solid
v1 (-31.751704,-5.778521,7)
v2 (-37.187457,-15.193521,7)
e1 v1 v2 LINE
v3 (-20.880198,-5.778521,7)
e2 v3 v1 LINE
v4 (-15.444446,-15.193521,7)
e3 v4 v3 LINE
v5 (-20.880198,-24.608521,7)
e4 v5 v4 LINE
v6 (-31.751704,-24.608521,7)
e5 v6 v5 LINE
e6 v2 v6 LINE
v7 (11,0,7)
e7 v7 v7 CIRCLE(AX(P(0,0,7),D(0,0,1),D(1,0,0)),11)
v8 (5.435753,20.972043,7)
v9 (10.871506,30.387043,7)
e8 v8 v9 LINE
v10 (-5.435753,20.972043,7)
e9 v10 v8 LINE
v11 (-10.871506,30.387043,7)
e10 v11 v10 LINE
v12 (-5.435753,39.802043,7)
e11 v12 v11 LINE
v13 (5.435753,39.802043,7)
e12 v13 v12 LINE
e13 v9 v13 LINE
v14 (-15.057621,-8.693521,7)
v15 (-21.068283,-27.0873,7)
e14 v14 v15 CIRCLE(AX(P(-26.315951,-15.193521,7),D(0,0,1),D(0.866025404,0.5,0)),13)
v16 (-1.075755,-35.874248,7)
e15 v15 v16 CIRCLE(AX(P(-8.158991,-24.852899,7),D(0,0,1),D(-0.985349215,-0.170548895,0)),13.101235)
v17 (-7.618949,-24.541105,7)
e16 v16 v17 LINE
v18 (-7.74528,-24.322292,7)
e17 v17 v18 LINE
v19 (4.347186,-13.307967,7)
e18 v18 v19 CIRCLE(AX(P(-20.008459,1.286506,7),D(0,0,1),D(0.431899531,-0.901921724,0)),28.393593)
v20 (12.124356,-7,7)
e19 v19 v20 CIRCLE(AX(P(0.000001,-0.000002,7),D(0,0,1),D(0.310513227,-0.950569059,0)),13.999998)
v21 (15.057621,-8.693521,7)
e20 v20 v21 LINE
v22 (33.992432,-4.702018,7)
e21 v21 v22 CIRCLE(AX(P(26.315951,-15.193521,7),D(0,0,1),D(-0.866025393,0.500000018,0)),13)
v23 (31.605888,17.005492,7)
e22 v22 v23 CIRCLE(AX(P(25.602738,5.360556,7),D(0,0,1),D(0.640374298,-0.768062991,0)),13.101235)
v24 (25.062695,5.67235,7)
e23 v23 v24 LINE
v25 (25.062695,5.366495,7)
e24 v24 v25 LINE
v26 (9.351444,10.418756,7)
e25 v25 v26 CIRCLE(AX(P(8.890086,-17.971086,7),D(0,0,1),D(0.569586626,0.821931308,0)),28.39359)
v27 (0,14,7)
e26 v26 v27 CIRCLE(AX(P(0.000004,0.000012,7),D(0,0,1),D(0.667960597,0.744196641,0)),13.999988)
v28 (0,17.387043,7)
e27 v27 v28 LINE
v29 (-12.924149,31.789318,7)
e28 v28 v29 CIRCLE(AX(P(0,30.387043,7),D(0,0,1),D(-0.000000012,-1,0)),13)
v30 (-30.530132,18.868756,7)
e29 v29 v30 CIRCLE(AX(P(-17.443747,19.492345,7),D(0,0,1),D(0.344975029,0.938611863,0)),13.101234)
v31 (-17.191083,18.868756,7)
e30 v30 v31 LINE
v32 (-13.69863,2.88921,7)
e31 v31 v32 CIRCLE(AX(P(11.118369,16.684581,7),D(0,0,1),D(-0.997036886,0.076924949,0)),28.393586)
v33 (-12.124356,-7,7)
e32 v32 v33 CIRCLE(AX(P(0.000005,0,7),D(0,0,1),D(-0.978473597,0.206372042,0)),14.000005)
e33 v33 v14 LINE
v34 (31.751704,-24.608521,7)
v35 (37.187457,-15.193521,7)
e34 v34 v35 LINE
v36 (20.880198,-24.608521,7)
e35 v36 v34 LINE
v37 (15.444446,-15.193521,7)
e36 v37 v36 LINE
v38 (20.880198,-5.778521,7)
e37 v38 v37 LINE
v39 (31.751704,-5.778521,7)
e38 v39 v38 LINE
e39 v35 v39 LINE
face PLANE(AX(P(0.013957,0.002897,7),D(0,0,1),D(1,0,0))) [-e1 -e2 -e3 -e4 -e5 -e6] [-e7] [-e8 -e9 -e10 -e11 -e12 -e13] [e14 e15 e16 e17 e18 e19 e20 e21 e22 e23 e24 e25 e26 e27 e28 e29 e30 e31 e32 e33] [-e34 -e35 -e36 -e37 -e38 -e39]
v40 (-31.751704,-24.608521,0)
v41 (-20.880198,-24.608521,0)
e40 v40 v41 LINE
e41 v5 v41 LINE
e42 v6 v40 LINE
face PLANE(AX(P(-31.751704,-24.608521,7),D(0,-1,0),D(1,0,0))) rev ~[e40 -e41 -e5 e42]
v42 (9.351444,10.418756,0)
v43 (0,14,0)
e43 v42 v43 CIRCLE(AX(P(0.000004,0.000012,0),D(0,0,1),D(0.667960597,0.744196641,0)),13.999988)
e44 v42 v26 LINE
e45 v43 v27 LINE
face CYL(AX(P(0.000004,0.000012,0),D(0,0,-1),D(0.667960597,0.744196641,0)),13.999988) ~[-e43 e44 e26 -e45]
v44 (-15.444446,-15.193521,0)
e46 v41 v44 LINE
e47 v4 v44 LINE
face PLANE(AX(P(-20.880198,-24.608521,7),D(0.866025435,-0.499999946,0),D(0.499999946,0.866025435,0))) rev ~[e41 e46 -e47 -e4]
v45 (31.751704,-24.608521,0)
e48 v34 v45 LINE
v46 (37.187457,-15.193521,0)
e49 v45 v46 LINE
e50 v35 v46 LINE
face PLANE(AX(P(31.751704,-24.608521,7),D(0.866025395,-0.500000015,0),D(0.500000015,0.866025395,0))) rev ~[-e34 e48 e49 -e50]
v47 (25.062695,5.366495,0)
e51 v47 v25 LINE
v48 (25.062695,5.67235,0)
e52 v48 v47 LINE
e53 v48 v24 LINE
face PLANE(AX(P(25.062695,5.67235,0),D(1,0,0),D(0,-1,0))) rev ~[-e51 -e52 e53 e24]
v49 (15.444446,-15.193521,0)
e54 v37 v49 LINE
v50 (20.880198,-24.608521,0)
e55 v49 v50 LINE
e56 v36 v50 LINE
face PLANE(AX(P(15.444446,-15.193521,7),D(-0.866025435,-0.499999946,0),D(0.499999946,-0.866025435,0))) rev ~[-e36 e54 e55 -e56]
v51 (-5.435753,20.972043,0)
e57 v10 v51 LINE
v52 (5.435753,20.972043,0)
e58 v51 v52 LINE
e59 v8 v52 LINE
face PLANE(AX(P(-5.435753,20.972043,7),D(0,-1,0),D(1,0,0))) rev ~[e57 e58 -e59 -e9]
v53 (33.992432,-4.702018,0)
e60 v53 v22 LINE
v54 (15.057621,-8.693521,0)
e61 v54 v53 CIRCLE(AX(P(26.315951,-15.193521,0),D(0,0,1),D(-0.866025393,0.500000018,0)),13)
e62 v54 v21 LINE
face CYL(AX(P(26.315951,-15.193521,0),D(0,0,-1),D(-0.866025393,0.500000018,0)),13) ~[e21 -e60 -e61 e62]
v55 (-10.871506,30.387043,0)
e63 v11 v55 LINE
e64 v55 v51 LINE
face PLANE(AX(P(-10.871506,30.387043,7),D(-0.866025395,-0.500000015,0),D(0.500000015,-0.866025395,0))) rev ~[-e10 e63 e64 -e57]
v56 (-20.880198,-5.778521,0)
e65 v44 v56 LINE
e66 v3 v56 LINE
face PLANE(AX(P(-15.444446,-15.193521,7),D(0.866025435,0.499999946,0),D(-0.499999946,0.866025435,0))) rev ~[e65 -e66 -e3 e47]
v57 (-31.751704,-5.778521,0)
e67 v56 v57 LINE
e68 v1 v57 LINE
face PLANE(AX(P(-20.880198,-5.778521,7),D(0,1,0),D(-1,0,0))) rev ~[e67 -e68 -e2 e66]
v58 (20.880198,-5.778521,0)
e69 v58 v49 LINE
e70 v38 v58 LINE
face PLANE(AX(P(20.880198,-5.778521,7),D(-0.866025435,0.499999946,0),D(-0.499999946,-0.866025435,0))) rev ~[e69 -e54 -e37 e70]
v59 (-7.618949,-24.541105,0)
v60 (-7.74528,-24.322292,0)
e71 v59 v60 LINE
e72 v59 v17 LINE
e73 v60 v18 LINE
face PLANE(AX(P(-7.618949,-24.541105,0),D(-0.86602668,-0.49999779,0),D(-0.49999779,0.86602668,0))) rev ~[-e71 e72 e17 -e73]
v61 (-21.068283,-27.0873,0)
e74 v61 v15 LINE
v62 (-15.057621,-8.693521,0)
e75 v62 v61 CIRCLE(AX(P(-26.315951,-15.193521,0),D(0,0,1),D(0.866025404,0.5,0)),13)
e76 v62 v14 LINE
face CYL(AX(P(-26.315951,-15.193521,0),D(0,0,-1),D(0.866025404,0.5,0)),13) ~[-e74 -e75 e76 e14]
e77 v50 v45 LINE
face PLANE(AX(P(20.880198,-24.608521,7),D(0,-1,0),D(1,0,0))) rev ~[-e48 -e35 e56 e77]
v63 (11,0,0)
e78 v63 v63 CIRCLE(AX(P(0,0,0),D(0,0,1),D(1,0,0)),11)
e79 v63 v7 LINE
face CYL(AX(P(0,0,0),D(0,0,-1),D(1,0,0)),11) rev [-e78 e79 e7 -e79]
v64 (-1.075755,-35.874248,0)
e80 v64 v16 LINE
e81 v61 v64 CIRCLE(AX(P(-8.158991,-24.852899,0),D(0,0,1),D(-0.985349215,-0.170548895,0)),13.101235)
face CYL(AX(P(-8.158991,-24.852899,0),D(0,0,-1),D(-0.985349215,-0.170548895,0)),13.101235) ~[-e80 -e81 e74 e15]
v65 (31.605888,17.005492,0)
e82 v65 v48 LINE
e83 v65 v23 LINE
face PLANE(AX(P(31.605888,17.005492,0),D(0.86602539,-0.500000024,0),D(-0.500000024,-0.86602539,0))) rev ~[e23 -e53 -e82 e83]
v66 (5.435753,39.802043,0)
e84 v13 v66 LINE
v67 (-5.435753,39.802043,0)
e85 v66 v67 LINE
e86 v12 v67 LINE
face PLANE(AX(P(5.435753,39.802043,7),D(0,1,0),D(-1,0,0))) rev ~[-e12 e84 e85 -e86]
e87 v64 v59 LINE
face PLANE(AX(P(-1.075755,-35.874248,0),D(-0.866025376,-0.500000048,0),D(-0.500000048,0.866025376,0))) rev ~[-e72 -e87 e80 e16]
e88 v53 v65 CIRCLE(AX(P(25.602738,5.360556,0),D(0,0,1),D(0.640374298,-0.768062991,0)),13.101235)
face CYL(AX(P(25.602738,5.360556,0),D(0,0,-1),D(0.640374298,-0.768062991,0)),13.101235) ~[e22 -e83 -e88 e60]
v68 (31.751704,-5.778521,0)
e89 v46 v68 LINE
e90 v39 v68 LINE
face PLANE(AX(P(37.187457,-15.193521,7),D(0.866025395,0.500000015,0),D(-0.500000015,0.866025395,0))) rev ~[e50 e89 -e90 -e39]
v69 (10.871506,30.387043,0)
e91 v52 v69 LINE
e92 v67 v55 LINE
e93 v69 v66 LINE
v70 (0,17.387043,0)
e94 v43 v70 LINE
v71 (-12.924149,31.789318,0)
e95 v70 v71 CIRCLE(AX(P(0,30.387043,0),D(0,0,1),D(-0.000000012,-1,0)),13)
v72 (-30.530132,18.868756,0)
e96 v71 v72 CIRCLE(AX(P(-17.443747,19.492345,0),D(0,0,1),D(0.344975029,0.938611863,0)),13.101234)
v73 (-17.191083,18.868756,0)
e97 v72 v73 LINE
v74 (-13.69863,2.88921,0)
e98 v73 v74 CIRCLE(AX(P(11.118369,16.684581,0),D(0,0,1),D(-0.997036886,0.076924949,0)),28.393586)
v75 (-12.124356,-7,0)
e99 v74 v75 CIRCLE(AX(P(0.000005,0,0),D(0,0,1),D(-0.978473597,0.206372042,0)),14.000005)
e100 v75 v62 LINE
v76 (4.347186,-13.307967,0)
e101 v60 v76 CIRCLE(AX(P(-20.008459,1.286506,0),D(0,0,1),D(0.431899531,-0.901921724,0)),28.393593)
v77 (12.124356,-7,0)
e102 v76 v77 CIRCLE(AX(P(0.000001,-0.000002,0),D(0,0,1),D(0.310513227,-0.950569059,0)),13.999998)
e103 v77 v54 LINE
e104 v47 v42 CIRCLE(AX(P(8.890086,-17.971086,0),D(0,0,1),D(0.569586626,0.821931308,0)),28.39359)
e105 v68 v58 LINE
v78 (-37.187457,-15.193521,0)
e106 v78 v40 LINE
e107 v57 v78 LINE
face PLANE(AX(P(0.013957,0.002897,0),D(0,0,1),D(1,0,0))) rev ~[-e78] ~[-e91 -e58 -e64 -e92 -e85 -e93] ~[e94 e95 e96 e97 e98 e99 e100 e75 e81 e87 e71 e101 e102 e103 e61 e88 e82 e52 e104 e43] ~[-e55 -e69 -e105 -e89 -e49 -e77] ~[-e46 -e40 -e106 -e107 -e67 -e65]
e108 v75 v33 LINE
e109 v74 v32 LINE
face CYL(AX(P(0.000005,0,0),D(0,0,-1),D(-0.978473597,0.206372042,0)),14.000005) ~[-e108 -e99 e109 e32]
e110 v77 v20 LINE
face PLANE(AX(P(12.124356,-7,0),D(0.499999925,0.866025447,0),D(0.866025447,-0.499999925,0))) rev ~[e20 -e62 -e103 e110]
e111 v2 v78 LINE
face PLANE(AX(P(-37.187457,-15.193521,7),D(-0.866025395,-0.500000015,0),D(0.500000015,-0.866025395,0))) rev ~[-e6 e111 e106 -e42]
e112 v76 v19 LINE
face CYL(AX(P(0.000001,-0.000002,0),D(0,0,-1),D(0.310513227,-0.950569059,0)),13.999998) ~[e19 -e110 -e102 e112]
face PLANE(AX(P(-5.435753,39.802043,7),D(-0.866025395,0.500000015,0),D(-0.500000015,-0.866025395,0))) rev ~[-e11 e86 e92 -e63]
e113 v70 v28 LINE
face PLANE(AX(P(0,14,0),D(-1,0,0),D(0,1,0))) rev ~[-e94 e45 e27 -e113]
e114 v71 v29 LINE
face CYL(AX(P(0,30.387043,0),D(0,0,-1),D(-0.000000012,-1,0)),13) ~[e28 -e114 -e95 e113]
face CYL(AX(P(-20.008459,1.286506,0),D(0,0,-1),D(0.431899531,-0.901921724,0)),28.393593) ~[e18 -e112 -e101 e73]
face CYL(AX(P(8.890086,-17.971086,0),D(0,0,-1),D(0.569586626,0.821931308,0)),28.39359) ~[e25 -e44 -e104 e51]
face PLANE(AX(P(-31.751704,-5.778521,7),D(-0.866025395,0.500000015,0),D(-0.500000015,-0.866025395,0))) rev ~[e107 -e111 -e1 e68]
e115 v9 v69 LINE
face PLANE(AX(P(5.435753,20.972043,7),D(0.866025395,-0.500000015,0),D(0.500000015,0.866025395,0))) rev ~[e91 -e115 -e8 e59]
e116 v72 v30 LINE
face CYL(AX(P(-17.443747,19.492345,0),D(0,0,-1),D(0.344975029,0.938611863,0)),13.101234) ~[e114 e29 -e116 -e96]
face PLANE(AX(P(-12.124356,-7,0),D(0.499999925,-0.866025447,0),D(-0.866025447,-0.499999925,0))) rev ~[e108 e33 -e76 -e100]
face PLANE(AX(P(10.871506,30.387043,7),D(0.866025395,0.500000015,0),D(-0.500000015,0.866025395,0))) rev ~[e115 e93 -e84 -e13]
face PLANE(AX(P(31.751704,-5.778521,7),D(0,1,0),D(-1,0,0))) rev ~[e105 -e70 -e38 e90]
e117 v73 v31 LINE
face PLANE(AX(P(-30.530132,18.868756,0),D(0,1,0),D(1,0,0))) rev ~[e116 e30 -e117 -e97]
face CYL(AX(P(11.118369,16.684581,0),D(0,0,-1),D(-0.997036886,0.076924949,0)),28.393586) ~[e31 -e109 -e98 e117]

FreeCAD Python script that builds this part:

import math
import FreeCAD as App
import Part
import Sketcher
Q = App.Units.Quantity


def add_polygon(sketch, points):
    """Adds a closed chain of lines whose ends are joined by coincident constraints."""
    first, n = sketch.GeometryCount, len(points)
    for a, b in zip(points, points[1:] + points[:1]):
        sketch.addGeometry(Part.LineSegment(App.Vector(*a, 0), App.Vector(*b, 0)), False)
    for i in range(n):
        sketch.addConstraint(Sketcher.Constraint("Coincident", first + i, 2, first + (i + 1) % n, 1))

doc = App.newDocument("Part")
body = doc.addObject("PartDesign::Body", "Body")

# Sketch on XY plane
sketch1 = body.newObject("Sketcher::SketchObject", "Sketch")
sketch1.AttachmentSupport = (doc.getObject("XY_Plane"), [""])
sketch1.MapMode = "FlatFace"
sketch1.addGeometry([
    Part.ArcOfCircle(Part.Circle(App.Vector(-20.008459, 1.286506, 0), App.Vector(0, 0, 1), 28.393593), math.radians(-64.41183), math.radians(-30.931028)),  # 0
    Part.ArcOfCircle(Part.Circle(App.Vector(0.000001, -0.000002, 0), App.Vector(0, 0, 1), 13.999998), math.radians(-71.909837), math.radians(-29.999995)),  # 1
    Part.LineSegment(App.Vector(12.124356, -7, 0), App.Vector(15.057621, -8.693521, 0)),  # 2
    Part.ArcOfCircle(Part.Circle(App.Vector(26.315951, -15.193521, 0), App.Vector(0, 0, 1), 13), math.radians(149.999999), math.radians(413.807606)),  # 3
    Part.ArcOfCircle(Part.Circle(App.Vector(25.602738, 5.360556, 0), App.Vector(0, 0, 1), 13.101235), math.radians(-50.180264), math.radians(62.728174)),  # 4
    Part.LineSegment(App.Vector(31.605888, 17.005492, 0), App.Vector(25.062695, 5.67235, 0)),  # 5
    Part.LineSegment(App.Vector(25.062695, 5.67235, 0), App.Vector(25.062695, 5.366495, 0)),  # 6
    Part.ArcOfCircle(Part.Circle(App.Vector(8.890086, -17.971086, 0), App.Vector(0, 0, 1), 28.39359), math.radians(55.278595), math.radians(89.068978)),  # 7
    Part.ArcOfCircle(Part.Circle(App.Vector(0.000004, 0.000012, 0), App.Vector(0, 0, 1), 13.999988), math.radians(48.090143), math.radians(90.000014)),  # 8
    Part.LineSegment(App.Vector(0, 14, 0), App.Vector(0, 17.387043, 0)),  # 9
    Part.ArcOfCircle(Part.Circle(App.Vector(0, 30.387043, 0), App.Vector(0, 0, 1), 13), math.radians(-90.000001), math.radians(173.807611)),  # 10
    Part.ArcOfCircle(Part.Circle(App.Vector(-17.443747, 19.492345, 0), App.Vector(0, 0, 1), 13.101234), math.radians(69.819729), math.radians(182.728178)),  # 11
    Part.LineSegment(App.Vector(-30.530132, 18.868756, 0), App.Vector(-17.191083, 18.868756, 0)),  # 12
    Part.ArcOfCircle(Part.Circle(App.Vector(11.118369, 16.684581, 0), App.Vector(0, 0, 1), 28.393586), math.radians(175.588167), math.radians(209.068979)),  # 13
    Part.ArcOfCircle(Part.Circle(App.Vector(0.000005, 0, 0), App.Vector(0, 0, 1), 14.000005), math.radians(168.090171), math.radians(209.999989)),  # 14
    Part.LineSegment(App.Vector(-12.124356, -7, 0), App.Vector(-15.057621, -8.693521, 0)),  # 15
    Part.ArcOfCircle(Part.Circle(App.Vector(-26.315951, -15.193521, 0), App.Vector(0, 0, 1), 13), math.radians(30), math.radians(293.807608)),  # 16
    Part.ArcOfCircle(Part.Circle(App.Vector(-8.158991, -24.852899, 0), App.Vector(0, 0, 1), 13.101235), math.radians(-170.180266), math.radians(-57.271826)),  # 17
    Part.LineSegment(App.Vector(-1.075755, -35.874248, 0), App.Vector(-7.618949, -24.541105, 0)),  # 18
    Part.LineSegment(App.Vector(-7.618949, -24.541105, 0), App.Vector(-7.74528, -24.322292, 0)),  # 19
    Part.Circle(App.Vector(0, 0, 0), App.Vector(0, 0, 1), 11),  # 20
], False)
sketch1.addConstraint([
    Sketcher.Constraint("Coincident", 0, 2, 1, 1),
    Sketcher.Constraint("Coincident", 1, 2, 2, 1),
    Sketcher.Constraint("Coincident", 2, 2, 3, 1),
    Sketcher.Constraint("Coincident", 3, 2, 4, 1),
    Sketcher.Constraint("Coincident", 4, 2, 5, 1),
    Sketcher.Constraint("Coincident", 5, 2, 6, 1),
    Sketcher.Constraint("Coincident", 6, 2, 7, 1),
    Sketcher.Constraint("Coincident", 7, 2, 8, 1),
    Sketcher.Constraint("Coincident", 8, 2, 9, 1),
    Sketcher.Constraint("Coincident", 9, 2, 10, 1),
    Sketcher.Constraint("Coincident", 10, 2, 11, 1),
    Sketcher.Constraint("Coincident", 11, 2, 12, 1),
    Sketcher.Constraint("Coincident", 12, 2, 13, 1),
    Sketcher.Constraint("Coincident", 13, 2, 14, 1),
    Sketcher.Constraint("Coincident", 14, 2, 15, 1),
    Sketcher.Constraint("Coincident", 15, 2, 16, 1),
    Sketcher.Constraint("Coincident", 16, 2, 17, 1),
    Sketcher.Constraint("Coincident", 17, 2, 18, 1),
    Sketcher.Constraint("Coincident", 18, 2, 19, 1),
    Sketcher.Constraint("Coincident", 19, 2, 0, 1),
    Sketcher.Constraint("Vertical", 6),
    Sketcher.Constraint("Vertical", 9),
    Sketcher.Constraint("Horizontal", 12),
    Sketcher.Constraint("Coincident", 1, 3, -1, 1),
    Sketcher.Constraint("Coincident", 14, 3, -1, 1),
    Sketcher.Constraint("Coincident", 20, 3, -1, 1),
    Sketcher.Constraint("Equal", 3, 10),
    Sketcher.Constraint("Equal", 4, 11),
    Sketcher.Constraint("Equal", 10, 16),
    Sketcher.Constraint("Equal", 11, 17),
    Sketcher.Constraint("Symmetric", 3, 3, 16, 3, -2),
    Sketcher.Constraint("Symmetric", 1, 2, 14, 2, -2),
    Sketcher.Constraint("PointOnObject", 10, 3, -2),
    Sketcher.Constraint("PointOnObject", 8, 2, -2),
    Sketcher.Constraint("Perpendicular", 2, 5),
    Sketcher.Constraint("Perpendicular", 15, 18),
    Sketcher.Constraint("Horizontal", 2, 2, 15, 2),
    Sketcher.Constraint("Vertical", 8, 3, 14, 3),
    Sketcher.Constraint("Equal", 5, 18),
    Sketcher.Constraint("Diameter", 20, Q("22 mm")),
    Sketcher.Constraint("Radius", 1, Q("13.999998 mm")),
    Sketcher.Constraint("Radius", 3, Q("13 mm")),
    Sketcher.Constraint("Angle", 2, Q("-29.999995 deg")),
    Sketcher.Constraint("DistanceY", 1, 2, -1, 1, Q("7 mm")),
    Sketcher.Constraint("DistanceY", -1, 1, 8, 2, Q("14 mm")),
    Sketcher.Constraint("DistanceY", 3, 3, 2, 2, Q("6.5 mm")),
    Sketcher.Constraint("Radius", 7, Q("28.39359 mm")),
    Sketcher.Constraint("Radius", 8, Q("13.999988 mm")),
    Sketcher.Constraint("Radius", 0, Q("28.393593 mm")),
    Sketcher.Constraint("Radius", 4, Q("13.101235 mm")),
    Sketcher.Constraint("Radius", 13, Q("28.393586 mm")),
    Sketcher.Constraint("DistanceX", 12, 1, 12, 2, Q("13.339049 mm")),
    Sketcher.Constraint("DistanceY", 17, 3, -1, 1, Q("24.852899 mm")),
    Sketcher.Constraint("DistanceY", 16, 2, -1, 1, Q("27.0873 mm")),
    Sketcher.Constraint("DistanceY", 11, 3, 10, 3, Q("10.894699 mm")),
    Sketcher.Constraint("DistanceX", 0, 2, 7, 3, Q("4.5429 mm")),
    Sketcher.Constraint("DistanceX", 11, 3, 10, 2, Q("4.519598 mm")),
    Sketcher.Constraint("DistanceY", 8, 3, 13, 2, Q("2.889198 mm")),
    Sketcher.Constraint("DistanceY", 6, 2, 6, 1, Q("0.305855 mm")),
    Sketcher.Constraint("DistanceY", 9, 1, 9, 2, Q("3.387043 mm")),
    Sketcher.Constraint("DistanceX", 0, 3, -1, 1, Q("20.008459 mm")),
    Sketcher.Constraint("DistanceX", -1, 1, 3, 3, Q("26.315951 mm")),
    Sketcher.Constraint("DistanceX", -1, 1, 13, 3, Q("11.118369 mm")),
    Sketcher.Constraint("DistanceX", -1, 1, 4, 2, Q("31.605888 mm")),
    Sketcher.Constraint("DistanceY", -1, 1, 5, 2, Q("5.67235 mm")),
    Sketcher.Constraint("DistanceX", 18, 2, -1, 1, Q("7.618949 mm")),
    Sketcher.Constraint("DistanceX", 19, 2, -1, 1, Q("7.74528 mm")),
    Sketcher.Constraint("DistanceY", 0, 3, 4, 3, Q("4.07405 mm")),
    Sketcher.Constraint("DistanceY", 7, 3, 4, 3, Q("23.331641 mm")),
    Sketcher.Constraint("DistanceY", 7, 3, 10, 3, Q("48.358129 mm")),
])
pad1 = body.newObject("PartDesign::Pad", "Pad")
pad1.Profile = sketch1
pad1.Length = 7

# Sketch on XY plane
sketch2 = body.newObject("Sketcher::SketchObject", "Sketch001")
sketch2.AttachmentSupport = (doc.getObject("XY_Plane"), [""])
sketch2.MapMode = "FlatFace"
sketch2.AttachmentOffset = App.Placement(App.Vector(0, 0, 7), App.Rotation())
add_polygon(sketch2, [(5.435753, 39.802043), (-5.435753, 39.802043), (-10.871506, 30.387043), (-5.435753, 20.972043), (5.435753, 20.972043), (10.871506, 30.387043)])  # lines 0-5
add_polygon(sketch2, [(-37.187457, -15.193521), (-31.751704, -24.608521), (-20.880198, -24.608521), (-15.444446, -15.193521), (-20.880198, -5.778521), (-31.751704, -5.778521)])  # lines 6-11
add_polygon(sketch2, [(31.751704, -24.608521), (37.187457, -15.193521), (31.751704, -5.778521), (20.880198, -5.778521), (15.444446, -15.193521), (20.880198, -24.608521)])  # lines 12-17
sketch2.addConstraint([
    Sketcher.Constraint("Horizontal", 0),
    Sketcher.Constraint("Horizontal", 3),
    Sketcher.Constraint("Horizontal", 7),
    Sketcher.Constraint("Horizontal", 10),
    Sketcher.Constraint("Horizontal", 14),
    Sketcher.Constraint("Horizontal", 17),
    Sketcher.Constraint("Symmetric", 1, 2, 4, 2, -2),
    Sketcher.Constraint("Symmetric", 11, 2, 12, 2, -2),
    Sketcher.Constraint("Symmetric", 10, 2, 13, 2, -2),
    Sketcher.Constraint("Symmetric", 8, 2, 15, 2, -2),
    Sketcher.Constraint("Symmetric", 7, 2, 16, 2, -2),
    Sketcher.Constraint("Parallel", 1, 4),
    Sketcher.Constraint("Parallel", 2, 5),
    Sketcher.Constraint("Parallel", 5, 6),
    Sketcher.Constraint("Parallel", 4, 8),
    Sketcher.Constraint("Parallel", 6, 9),
    Sketcher.Constraint("Parallel", 8, 11),
    Sketcher.Constraint("Parallel", 11, 12),
    Sketcher.Constraint("Parallel", 9, 13),
    Sketcher.Constraint("Parallel", 12, 15),
    Sketcher.Constraint("Horizontal", 8, 2, 11, 2),
    Sketcher.Constraint("Vertical", 0, 2, 2, 2),
    Sketcher.Constraint("Vertical", 7, 2, 9, 2),
    Sketcher.Constraint("Equal", 3, 7),
    Sketcher.Constraint("Equal", 5, 6),
    Sketcher.Constraint("Angle", 1, Q("-120.000001 deg")),
    Sketcher.Constraint("DistanceY", 2, 2, 0, 2, Q("18.83 mm")),
    Sketcher.Constraint("DistanceX", 7, 2, -1, 1, Q("20.880198 mm")),
    Sketcher.Constraint("DistanceX", 6, 2, 1, 2, Q("20.880198 mm")),
    Sketcher.Constraint("DistanceY", 6, 2, -1, 1, Q("24.608521 mm")),
    Sketcher.Constraint("DistanceY", -1, 1, 0, 2, Q("39.802043 mm")),
])
pocket1 = body.newObject("PartDesign::Pocket", "Pocket")
pocket1.Profile = sketch2
pocket1.Length = 25

doc.recompute()
